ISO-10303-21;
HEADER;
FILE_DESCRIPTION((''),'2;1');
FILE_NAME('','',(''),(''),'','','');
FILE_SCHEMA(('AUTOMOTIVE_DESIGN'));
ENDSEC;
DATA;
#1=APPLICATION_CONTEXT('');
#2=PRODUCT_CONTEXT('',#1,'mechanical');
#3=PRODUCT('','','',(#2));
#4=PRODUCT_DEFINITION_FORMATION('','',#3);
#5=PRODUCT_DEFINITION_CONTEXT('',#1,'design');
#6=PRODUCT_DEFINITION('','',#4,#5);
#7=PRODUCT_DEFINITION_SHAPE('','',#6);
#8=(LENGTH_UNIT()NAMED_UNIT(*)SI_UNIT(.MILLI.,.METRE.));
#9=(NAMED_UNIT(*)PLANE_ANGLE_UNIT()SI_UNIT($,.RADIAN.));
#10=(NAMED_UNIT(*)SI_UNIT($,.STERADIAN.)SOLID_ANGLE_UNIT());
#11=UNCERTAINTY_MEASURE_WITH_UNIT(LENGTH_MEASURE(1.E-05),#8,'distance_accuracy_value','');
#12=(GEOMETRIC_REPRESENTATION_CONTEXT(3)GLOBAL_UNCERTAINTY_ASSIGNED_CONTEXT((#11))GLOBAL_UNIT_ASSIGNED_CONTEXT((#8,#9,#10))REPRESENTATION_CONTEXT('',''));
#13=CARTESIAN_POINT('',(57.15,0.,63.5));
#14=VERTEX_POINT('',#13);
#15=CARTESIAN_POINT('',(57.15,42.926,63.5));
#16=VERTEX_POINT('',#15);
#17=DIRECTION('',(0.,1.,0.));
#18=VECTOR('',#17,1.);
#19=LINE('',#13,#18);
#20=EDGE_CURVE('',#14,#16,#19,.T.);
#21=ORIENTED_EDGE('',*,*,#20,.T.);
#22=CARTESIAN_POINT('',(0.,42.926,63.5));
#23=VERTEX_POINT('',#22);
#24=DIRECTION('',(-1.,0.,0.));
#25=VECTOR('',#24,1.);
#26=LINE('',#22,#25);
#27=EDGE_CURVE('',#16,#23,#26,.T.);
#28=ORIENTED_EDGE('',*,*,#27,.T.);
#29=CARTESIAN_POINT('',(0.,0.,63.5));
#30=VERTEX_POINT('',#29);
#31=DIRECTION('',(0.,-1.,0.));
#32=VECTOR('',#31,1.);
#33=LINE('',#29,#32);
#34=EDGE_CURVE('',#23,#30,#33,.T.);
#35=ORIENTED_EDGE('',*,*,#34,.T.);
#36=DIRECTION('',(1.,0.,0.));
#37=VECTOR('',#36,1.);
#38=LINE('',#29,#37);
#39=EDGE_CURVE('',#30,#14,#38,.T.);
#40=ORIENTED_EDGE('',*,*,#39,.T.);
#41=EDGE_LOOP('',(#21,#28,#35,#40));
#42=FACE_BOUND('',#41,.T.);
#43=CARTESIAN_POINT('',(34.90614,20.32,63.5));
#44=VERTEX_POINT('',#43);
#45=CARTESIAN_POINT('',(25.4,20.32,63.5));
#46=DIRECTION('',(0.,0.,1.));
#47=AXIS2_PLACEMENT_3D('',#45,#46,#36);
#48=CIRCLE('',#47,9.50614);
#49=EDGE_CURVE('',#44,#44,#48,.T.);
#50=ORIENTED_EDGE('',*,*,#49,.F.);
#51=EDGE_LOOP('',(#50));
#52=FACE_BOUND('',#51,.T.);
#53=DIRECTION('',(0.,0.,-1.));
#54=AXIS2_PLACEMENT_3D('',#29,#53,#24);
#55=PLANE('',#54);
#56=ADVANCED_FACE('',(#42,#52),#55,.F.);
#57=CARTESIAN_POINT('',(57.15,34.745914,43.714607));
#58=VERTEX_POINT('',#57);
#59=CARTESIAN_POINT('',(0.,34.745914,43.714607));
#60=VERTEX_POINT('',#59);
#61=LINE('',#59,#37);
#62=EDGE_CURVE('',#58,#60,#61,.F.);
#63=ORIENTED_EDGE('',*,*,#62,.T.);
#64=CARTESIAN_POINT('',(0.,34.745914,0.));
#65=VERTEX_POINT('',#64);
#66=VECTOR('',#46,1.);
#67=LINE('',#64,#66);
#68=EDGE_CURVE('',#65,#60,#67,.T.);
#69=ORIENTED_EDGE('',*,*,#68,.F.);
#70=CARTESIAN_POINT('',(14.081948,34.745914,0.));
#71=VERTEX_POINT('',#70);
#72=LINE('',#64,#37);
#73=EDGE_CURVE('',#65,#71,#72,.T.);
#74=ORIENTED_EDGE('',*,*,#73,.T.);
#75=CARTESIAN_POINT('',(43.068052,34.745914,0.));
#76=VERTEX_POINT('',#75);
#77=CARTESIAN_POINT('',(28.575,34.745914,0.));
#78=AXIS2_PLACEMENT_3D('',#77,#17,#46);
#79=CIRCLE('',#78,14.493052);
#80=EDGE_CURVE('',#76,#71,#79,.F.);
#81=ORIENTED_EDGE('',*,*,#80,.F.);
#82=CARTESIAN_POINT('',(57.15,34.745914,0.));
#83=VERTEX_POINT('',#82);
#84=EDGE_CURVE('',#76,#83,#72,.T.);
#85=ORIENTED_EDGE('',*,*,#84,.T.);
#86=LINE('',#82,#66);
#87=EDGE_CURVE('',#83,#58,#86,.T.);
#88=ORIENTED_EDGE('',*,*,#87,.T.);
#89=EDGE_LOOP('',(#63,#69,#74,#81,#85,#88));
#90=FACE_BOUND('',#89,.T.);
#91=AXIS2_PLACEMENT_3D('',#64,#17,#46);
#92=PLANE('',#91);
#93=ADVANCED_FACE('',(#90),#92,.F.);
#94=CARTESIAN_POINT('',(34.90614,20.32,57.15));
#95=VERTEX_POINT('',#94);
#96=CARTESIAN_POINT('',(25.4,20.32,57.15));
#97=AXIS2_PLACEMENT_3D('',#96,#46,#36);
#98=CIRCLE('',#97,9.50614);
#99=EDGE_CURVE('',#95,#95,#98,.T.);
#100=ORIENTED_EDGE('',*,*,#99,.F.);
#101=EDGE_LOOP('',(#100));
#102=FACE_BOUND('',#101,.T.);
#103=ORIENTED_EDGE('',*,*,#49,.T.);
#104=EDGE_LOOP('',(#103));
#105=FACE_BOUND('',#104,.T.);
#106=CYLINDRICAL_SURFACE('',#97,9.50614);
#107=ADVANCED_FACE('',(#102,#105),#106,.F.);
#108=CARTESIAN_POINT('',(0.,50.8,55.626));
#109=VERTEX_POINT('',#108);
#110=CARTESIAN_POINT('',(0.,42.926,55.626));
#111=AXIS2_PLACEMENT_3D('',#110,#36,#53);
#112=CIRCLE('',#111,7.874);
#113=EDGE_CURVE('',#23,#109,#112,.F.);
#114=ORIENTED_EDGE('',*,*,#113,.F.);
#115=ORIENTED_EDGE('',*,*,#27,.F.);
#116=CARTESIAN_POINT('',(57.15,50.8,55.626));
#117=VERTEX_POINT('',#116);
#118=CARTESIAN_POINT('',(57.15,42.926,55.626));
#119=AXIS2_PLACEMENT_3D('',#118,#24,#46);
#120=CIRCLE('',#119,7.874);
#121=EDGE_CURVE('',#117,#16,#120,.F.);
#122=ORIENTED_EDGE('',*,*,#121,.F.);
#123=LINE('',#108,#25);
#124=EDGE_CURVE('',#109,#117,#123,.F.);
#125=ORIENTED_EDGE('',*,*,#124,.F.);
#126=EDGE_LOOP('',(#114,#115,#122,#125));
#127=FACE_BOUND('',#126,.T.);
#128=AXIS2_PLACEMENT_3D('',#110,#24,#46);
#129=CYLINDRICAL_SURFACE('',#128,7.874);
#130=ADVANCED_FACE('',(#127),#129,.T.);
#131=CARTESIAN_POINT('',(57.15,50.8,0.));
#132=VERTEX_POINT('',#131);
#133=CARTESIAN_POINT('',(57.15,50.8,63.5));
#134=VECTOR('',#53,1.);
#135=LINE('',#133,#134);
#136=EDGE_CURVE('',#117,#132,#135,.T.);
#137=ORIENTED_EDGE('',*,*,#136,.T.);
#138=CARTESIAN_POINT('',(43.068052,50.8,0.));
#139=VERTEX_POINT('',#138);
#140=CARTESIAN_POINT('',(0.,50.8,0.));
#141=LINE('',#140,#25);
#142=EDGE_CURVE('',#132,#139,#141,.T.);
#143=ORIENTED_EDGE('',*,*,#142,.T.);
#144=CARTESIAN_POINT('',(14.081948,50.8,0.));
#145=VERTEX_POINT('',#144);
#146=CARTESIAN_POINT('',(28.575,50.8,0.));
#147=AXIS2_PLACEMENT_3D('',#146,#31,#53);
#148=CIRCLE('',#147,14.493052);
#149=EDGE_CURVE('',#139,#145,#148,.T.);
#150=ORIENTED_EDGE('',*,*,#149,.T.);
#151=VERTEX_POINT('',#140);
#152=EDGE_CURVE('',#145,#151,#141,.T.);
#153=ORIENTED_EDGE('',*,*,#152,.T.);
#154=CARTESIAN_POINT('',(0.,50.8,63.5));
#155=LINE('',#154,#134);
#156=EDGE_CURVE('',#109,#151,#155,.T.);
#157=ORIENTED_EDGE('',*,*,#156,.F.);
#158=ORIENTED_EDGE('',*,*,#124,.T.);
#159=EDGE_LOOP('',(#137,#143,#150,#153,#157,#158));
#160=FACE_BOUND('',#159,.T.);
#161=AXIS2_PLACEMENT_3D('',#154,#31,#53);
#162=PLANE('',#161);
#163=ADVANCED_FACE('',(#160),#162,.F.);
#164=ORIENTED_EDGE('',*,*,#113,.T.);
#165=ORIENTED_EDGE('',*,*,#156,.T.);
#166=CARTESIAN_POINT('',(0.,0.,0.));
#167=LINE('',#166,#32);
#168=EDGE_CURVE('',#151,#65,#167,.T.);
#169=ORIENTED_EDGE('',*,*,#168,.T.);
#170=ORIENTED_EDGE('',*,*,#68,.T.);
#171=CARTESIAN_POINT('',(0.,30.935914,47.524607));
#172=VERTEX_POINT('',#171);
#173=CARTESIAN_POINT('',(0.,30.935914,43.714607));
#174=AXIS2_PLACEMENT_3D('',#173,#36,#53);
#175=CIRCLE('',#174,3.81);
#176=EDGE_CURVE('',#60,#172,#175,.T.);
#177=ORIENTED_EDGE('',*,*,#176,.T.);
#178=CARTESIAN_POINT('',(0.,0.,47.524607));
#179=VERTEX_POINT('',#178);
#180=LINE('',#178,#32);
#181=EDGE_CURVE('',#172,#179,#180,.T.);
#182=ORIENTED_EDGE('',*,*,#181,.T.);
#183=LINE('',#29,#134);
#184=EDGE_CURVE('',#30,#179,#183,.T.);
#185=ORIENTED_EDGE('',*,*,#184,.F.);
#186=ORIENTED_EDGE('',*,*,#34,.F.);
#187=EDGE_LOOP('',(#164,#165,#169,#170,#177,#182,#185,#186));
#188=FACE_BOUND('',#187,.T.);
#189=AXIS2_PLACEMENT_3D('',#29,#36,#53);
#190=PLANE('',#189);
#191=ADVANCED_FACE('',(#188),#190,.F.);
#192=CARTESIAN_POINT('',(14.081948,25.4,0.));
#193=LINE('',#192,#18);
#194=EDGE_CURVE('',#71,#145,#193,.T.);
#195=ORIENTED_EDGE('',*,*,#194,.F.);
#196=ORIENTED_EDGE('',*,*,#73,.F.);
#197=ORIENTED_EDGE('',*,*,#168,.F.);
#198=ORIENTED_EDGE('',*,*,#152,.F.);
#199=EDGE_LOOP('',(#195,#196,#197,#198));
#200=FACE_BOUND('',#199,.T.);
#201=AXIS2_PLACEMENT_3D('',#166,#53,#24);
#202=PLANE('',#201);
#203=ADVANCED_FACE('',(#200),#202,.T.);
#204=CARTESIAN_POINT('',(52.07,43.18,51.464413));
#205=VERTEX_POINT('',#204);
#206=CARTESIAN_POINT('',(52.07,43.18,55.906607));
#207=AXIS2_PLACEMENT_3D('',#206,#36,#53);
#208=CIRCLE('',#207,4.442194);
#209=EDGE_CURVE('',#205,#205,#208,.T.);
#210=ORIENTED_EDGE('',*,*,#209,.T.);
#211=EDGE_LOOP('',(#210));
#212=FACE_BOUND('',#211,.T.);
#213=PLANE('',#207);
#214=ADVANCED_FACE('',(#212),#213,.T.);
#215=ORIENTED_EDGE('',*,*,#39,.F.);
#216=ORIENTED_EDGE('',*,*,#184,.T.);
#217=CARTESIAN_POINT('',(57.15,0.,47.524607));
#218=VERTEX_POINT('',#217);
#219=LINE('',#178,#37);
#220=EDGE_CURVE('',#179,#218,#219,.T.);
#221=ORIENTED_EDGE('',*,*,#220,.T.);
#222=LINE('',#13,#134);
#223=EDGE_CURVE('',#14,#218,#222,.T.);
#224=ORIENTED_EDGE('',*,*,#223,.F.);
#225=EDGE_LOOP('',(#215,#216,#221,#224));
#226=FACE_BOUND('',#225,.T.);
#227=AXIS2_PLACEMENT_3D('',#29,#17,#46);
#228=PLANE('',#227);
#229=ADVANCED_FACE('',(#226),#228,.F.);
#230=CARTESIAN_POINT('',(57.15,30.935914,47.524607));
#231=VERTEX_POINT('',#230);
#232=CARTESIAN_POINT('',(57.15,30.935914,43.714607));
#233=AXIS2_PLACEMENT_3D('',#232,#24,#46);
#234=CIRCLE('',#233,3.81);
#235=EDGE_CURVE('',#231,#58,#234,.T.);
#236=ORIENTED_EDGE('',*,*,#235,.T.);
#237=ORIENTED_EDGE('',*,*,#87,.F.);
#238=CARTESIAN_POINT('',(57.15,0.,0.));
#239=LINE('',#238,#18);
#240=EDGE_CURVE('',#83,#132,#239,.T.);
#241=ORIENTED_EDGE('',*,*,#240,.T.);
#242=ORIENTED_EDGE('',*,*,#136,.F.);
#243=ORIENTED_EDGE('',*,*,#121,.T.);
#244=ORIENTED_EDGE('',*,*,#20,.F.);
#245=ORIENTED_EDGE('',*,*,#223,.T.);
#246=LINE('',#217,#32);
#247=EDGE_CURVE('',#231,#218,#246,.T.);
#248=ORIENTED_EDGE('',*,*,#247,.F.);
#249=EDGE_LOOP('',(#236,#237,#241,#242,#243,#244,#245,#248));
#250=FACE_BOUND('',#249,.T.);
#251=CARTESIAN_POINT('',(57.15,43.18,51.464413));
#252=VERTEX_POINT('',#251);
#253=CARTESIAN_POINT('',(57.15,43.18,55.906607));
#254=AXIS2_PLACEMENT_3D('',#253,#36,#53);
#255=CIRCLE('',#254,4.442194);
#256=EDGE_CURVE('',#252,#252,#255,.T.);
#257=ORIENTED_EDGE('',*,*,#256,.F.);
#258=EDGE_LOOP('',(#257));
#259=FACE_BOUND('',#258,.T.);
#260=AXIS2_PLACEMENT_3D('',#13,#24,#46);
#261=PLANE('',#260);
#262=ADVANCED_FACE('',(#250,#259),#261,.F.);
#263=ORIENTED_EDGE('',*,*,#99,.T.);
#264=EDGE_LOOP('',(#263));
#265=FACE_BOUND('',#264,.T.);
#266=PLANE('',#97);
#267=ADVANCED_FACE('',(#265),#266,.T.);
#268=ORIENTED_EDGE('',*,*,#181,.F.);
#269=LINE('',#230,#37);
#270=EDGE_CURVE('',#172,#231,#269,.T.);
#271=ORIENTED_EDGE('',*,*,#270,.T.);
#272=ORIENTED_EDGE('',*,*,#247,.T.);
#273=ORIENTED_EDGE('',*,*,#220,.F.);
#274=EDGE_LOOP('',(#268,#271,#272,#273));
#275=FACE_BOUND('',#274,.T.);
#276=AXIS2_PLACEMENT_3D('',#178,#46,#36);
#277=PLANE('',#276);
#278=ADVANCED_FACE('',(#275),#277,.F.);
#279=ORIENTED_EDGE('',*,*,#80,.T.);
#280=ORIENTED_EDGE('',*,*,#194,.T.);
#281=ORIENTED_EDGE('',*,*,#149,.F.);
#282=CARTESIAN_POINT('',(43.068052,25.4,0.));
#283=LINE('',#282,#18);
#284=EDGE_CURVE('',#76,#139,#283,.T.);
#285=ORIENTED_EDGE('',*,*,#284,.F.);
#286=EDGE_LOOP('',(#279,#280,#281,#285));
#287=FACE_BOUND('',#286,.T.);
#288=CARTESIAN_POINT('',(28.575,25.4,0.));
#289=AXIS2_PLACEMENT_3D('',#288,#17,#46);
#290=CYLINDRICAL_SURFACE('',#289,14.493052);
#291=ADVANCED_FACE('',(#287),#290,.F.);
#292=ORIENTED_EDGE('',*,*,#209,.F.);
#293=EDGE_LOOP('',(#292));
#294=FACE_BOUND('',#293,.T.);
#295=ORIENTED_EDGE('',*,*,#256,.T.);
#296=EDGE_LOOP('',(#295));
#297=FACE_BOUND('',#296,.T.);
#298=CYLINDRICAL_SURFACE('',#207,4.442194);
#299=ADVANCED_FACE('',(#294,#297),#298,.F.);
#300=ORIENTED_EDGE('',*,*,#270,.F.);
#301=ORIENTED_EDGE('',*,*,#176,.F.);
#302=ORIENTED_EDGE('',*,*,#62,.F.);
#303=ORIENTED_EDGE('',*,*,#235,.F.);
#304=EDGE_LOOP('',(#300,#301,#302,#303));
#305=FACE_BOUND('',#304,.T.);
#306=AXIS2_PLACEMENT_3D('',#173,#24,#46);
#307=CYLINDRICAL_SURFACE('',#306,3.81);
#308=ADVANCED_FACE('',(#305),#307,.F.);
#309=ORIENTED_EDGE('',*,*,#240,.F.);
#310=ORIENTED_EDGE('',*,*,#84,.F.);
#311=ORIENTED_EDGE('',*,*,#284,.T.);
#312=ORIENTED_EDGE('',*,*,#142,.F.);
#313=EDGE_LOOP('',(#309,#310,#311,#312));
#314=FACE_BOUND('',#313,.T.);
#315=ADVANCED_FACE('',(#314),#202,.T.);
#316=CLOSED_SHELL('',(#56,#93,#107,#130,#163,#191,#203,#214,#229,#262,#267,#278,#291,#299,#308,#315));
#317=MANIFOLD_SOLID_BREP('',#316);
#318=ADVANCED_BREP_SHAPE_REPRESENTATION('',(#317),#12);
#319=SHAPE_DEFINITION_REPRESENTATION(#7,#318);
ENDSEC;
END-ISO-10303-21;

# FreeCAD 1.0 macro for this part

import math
import FreeCAD as App
import Part
import Sketcher
Q = App.Units.Quantity


def edges_at(feature, points):
    """Names of the edges that pass closest to the given points."""
    edges = feature.Shape.Edges
    near = lambda p: min(range(len(edges)), key=lambda i: edges[i].distToShape(Part.Vertex(*p))[0])
    return sorted({f"Edge{near(p) + 1}" for p in points})

doc = App.newDocument("Part")
params = doc.addObject("Spreadsheet::Sheet", "Params")
for row, (alias, value) in enumerate([
    ("sketch1_height", "2 in"),
    ("sketch1_width", "2.25 in"),
    ("pad1_length", "2.5 in"),
    ("pocket1_length", "0.25 in"),
    ("fillet_radius", "0.31 in"),
    ("pocket2_length", "2.25 in"),
    ("fillet2_radius", "0.15 in"),
    ("pocket3_length", "0.2 in"),
    ("pocket4_length", "1 in"),
], start=1):
    params.set(f"A{row}", alias)
    params.set(f"B{row}", "=" + value)
    params.setAlias(f"B{row}", alias)

body = doc.addObject("PartDesign::Body", "Body")

# Sketch on XY plane
sketch1 = doc.addObject("Sketcher::SketchObject", "Sketch")
body.addObject(sketch1)
sketch1.AttachmentSupport = (doc.XY_Plane, [""])
sketch1.MapMode = "FlatFace"
sketch1.addGeometry([
    Part.LineSegment(App.Vector(0, 51, 0), App.Vector(0, 0, 0)),
    Part.LineSegment(App.Vector(0, 0, 0), App.Vector(57, 0, 0)),
    Part.LineSegment(App.Vector(57, 0, 0), App.Vector(57, 51, 0)),
    Part.LineSegment(App.Vector(57, 51, 0), App.Vector(0, 51, 0)),
], False)
sketch1.addConstraint([
    Sketcher.Constraint("Coincident", 0, 2, 1, 1),
    Sketcher.Constraint("Coincident", 1, 2, 2, 1),
    Sketcher.Constraint("Coincident", 2, 2, 3, 1),
    Sketcher.Constraint("Coincident", 3, 2, 0, 1),
    Sketcher.Constraint("Vertical", 0),
    Sketcher.Constraint("Horizontal", 1),
    Sketcher.Constraint("Vertical", 2),
    Sketcher.Constraint("Horizontal", 3),
    Sketcher.Constraint("Coincident", 0, 2, -1, 1),
    Sketcher.Constraint("DistanceY", 0, 2, 0, 1, Q("2 in")),
    Sketcher.Constraint("DistanceX", 1, 1, 1, 2, Q("2.25 in")),
])
sketch1.setExpression("Constraints[9]", "Params.sketch1_height")
sketch1.setExpression("Constraints[10]", "Params.sketch1_width")
pad1 = doc.addObject("PartDesign::Pad", "Pad")
body.addObject(pad1)
pad1.Profile = sketch1
pad1.setExpression("Length", "Params.pad1_length")

# Sketch on XY plane
sketch2 = doc.addObject("Sketcher::SketchObject", "Sketch001")
body.addObject(sketch2)
sketch2.AttachmentSupport = (doc.XY_Plane, [""])
sketch2.MapMode = "FlatFace"
sketch2.AttachmentOffset = App.Placement(App.Vector(0, 0, 2.5 * 25.4), App.Rotation())
sketch2.addGeometry(Part.Circle(App.Vector(25, 20, 0), App.Vector(0, 0, 1), 10), False)
sketch2.addConstraint([
    Sketcher.Constraint("DistanceX", -1, 1, 0, 3, Q("1 in")),
    Sketcher.Constraint("DistanceY", -1, 1, 0, 3, Q("0.8 in")),
    Sketcher.Constraint("Diameter", 0, 19.012281),
])
pocket1 = doc.addObject("PartDesign::Pocket", "Pocket")
body.addObject(pocket1)
pocket1.Profile = sketch2
pocket1.setExpression("Length", "Params.pocket1_length")
doc.recompute()

fillet = doc.addObject("PartDesign::Fillet", "Fillet")
body.addObject(fillet)
fillet.Base = (pocket1, edges_at(pocket1, [(28.575, 50.8, 63.5)]))
fillet.setExpression("Radius", "Params.fillet_radius")

# Sketch on YZ plane
sketch3 = doc.addObject("Sketcher::SketchObject", "Sketch002")
body.addObject(sketch3)
sketch3.AttachmentSupport = (doc.YZ_Plane, [""])
sketch3.MapMode = "FlatFace"
sketch3.AttachmentOffset = App.Placement(App.Vector(0, 0, 2.25 * 25.4), App.Rotation())
sketch3.addGeometry([
    Part.LineSegment(App.Vector(35, 48, 0), App.Vector(0, 48, 0)),
    Part.LineSegment(App.Vector(0, 48, 0), App.Vector(0, 0, 0)),
    Part.LineSegment(App.Vector(0, 0, 0), App.Vector(35, 0, 0)),
    Part.LineSegment(App.Vector(35, 0, 0), App.Vector(35, 48, 0)),
], False)
sketch3.addConstraint([
    Sketcher.Constraint("Coincident", 0, 2, 1, 1),
    Sketcher.Constraint("Coincident", 1, 2, 2, 1),
    Sketcher.Constraint("Coincident", 2, 2, 3, 1),
    Sketcher.Constraint("Coincident", 3, 2, 0, 1),
    Sketcher.Constraint("Horizontal", 0),
    Sketcher.Constraint("Vertical", 1),
    Sketcher.Constraint("Horizontal", 2),
    Sketcher.Constraint("Vertical", 3),
    Sketcher.Constraint("Coincident", 1, 2, -1, 1),
    Sketcher.Constraint("DistanceX", 0, 2, 0, 1, 34.745914),
    Sketcher.Constraint("DistanceY", 1, 2, 1, 1, 47.524607),
])
pocket2 = doc.addObject("PartDesign::Pocket", "Pocket001")
body.addObject(pocket2)
pocket2.Profile = sketch3
pocket2.setExpression("Length", "Params.pocket2_length")
doc.recompute()

fillet2 = doc.addObject("PartDesign::Fillet", "Fillet001")
body.addObject(fillet2)
fillet2.Base = (pocket2, edges_at(pocket2, [(28.575, 34.746, 47.525)]))
fillet2.setExpression("Radius", "Params.fillet2_radius")

# Sketch on YZ plane
sketch4 = doc.addObject("Sketcher::SketchObject", "Sketch003")
body.addObject(sketch4)
sketch4.AttachmentSupport = (doc.YZ_Plane, [""])
sketch4.MapMode = "FlatFace"
sketch4.AttachmentOffset = App.Placement(App.Vector(0, 0, 2.25 * 25.4), App.Rotation())
sketch4.addGeometry(Part.Circle(App.Vector(43.2, 55.9, 0), App.Vector(0, 0, 1), 4.4), False)
sketch4.addConstraint([
    Sketcher.Constraint("DistanceX", -1, 1, 0, 3, Q("1.7 in")),
    Sketcher.Constraint("Diameter", 0, 8.884389),
    Sketcher.Constraint("DistanceY", -1, 1, 0, 3, 55.906607),
])
pocket3 = doc.addObject("PartDesign::Pocket", "Pocket002")
body.addObject(pocket3)
pocket3.Profile = sketch4
pocket3.setExpression("Length", "Params.pocket3_length")

# Sketch on XZ plane
sketch5 = doc.addObject("Sketcher::SketchObject", "Sketch004")
body.addObject(sketch5)
sketch5.AttachmentSupport = (doc.XZ_Plane, [""])
sketch5.MapMode = "FlatFace"
sketch5.AttachmentOffset = App.Placement(App.Vector(0, 0, -2 * 25.4), App.Rotation())
sketch5.addGeometry([
    Part.LineSegment(App.Vector(43, 0, 0), App.Vector(14, 0, 0)),
    Part.ArcOfCircle(Part.Circle(App.Vector(29, 0, 0), App.Vector(0, 0, 1), 14), math.radians(0), math.radians(180)),
], False)
sketch5.addConstraint([
    Sketcher.Constraint("Coincident", 0, 1, 1, 1),
    Sketcher.Constraint("Coincident", 1, 2, 0, 2),
    Sketcher.Constraint("Horizontal", 0),
    Sketcher.Constraint("PointOnObject", 1, 3, -1),
    Sketcher.Constraint("PointOnObject", 0, 1, -1),
    Sketcher.Constraint("DistanceX", -1, 1, 1, 3, Q("1.125 in")),
    Sketcher.Constraint("Radius", 1, 14.493052),
])
pocket4 = doc.addObject("PartDesign::Pocket", "Pocket003")
body.addObject(pocket4)
pocket4.Profile = sketch5
pocket4.setExpression("Length", "Params.pocket4_length")
pocket4.Reversed = True

doc.recompute()
